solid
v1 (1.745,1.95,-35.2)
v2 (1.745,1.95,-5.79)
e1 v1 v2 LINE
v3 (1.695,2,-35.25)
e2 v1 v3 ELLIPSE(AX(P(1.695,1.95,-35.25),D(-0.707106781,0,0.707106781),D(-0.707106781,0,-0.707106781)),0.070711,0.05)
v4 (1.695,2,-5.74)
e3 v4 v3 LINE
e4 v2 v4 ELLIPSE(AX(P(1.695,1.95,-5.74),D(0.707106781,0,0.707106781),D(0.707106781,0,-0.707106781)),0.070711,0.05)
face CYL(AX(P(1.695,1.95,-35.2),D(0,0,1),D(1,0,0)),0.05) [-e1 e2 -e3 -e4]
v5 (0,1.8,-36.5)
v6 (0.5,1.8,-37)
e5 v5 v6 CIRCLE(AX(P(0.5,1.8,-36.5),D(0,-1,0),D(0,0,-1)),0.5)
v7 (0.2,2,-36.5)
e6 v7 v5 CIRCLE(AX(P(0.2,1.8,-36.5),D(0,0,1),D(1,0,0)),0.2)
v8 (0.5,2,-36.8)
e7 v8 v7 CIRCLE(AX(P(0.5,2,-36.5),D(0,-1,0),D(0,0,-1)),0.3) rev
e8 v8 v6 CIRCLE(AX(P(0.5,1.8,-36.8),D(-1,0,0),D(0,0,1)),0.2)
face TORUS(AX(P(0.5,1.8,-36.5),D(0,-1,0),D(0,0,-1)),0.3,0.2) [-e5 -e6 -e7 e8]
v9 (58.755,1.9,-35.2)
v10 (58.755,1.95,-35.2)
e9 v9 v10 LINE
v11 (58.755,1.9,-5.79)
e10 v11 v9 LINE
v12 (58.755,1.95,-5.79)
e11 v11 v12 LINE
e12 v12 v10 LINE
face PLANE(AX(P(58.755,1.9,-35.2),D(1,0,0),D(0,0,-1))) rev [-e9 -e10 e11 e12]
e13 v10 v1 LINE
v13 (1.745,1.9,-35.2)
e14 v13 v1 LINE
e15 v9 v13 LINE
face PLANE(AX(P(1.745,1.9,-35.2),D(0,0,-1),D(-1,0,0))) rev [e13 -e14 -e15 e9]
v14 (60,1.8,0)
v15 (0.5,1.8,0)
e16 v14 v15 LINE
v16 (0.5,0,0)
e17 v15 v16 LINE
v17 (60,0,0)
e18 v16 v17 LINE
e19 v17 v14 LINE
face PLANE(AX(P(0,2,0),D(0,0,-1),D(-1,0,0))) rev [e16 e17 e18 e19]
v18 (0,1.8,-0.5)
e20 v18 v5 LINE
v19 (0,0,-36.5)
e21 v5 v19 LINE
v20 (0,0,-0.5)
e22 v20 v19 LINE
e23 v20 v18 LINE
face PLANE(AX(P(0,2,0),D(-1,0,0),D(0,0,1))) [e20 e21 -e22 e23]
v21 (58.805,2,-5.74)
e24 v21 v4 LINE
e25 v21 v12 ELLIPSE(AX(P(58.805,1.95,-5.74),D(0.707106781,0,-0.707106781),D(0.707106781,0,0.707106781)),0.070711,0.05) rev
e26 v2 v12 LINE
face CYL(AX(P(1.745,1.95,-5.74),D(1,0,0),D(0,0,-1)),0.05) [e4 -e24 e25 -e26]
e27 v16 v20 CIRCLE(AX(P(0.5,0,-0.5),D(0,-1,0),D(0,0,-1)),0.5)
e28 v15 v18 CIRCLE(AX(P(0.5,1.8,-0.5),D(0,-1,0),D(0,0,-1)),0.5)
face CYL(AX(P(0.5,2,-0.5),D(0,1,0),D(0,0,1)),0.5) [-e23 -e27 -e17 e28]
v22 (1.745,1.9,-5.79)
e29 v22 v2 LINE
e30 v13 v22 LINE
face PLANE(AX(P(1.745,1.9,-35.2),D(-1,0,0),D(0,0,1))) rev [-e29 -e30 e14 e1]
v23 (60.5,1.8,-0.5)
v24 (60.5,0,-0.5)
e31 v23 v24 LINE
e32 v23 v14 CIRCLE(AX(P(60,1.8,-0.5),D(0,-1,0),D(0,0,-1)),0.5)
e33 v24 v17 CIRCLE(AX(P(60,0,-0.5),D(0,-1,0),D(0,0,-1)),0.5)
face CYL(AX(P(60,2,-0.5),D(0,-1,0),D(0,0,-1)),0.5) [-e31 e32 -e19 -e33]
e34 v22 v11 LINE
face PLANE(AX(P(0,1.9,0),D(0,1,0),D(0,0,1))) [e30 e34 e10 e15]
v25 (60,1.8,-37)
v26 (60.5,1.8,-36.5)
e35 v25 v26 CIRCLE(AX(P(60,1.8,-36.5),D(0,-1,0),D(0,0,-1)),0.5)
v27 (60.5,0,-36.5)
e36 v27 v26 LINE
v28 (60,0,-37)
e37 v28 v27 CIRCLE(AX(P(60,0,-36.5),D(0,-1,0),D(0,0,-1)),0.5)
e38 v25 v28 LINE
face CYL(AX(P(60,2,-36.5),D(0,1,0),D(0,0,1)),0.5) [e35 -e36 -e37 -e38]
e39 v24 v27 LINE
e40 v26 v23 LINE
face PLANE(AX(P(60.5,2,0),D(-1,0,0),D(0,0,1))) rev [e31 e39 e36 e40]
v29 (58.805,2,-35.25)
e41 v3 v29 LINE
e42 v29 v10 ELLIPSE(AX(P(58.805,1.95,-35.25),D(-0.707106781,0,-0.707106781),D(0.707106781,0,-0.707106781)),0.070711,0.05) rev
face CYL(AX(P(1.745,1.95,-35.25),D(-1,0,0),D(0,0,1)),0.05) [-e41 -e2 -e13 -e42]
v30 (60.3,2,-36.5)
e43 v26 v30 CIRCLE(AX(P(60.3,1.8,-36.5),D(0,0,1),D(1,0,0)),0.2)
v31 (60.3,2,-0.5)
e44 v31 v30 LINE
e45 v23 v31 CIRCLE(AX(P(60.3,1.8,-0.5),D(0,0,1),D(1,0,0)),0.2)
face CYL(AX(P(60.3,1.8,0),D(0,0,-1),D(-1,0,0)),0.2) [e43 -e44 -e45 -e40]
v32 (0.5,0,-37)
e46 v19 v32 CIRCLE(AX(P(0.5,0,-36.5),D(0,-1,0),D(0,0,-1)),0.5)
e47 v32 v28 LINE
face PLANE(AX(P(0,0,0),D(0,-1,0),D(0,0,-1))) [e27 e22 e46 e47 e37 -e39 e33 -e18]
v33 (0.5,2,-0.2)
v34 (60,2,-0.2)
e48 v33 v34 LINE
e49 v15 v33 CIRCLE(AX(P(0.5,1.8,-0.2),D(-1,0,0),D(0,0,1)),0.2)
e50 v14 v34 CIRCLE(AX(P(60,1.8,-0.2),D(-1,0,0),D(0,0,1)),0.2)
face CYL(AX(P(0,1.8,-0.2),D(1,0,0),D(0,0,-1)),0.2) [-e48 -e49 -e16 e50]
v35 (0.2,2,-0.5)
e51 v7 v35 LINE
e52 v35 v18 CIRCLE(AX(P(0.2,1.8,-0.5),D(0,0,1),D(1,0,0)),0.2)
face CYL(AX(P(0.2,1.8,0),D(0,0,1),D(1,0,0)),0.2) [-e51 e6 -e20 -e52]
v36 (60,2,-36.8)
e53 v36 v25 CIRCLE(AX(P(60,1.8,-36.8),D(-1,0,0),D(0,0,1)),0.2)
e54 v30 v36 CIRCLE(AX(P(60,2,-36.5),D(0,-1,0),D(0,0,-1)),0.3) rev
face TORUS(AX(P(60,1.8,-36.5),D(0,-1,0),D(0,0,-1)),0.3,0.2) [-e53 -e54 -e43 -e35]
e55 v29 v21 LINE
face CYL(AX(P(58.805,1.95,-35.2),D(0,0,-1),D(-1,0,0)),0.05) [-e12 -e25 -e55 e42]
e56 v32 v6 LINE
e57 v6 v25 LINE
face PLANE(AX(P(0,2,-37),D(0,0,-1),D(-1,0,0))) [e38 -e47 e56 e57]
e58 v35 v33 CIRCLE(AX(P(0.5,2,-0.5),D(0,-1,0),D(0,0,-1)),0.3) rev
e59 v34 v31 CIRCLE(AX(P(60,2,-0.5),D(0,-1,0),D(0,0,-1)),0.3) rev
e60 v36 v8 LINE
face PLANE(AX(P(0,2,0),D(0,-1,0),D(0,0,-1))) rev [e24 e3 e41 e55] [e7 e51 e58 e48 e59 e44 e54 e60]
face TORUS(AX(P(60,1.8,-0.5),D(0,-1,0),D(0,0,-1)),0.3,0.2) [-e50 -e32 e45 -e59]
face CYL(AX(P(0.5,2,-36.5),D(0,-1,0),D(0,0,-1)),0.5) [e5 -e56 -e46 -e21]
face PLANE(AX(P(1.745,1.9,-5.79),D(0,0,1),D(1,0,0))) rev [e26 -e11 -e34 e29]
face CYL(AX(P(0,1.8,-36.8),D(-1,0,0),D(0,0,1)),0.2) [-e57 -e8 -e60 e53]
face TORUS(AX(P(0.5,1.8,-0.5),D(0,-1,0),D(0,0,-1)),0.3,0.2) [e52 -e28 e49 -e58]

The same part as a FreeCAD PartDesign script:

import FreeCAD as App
import Part
import Sketcher
Q = App.Units.Quantity


def edges_at(feature, points):
    """Names of the edges that pass closest to the given points."""
    edges = feature.Shape.Edges
    near = lambda p: min(range(len(edges)), key=lambda i: edges[i].distToShape(Part.Vertex(*p))[0])
    return sorted({f"Edge{near(p) + 1}" for p in points})


def add_polygon(sketch, points):
    """Adds a closed chain of lines whose ends are joined by coincident constraints."""
    first, n = sketch.GeometryCount, len(points)
    for a, b in zip(points, points[1:] + points[:1]):
        sketch.addGeometry(Part.LineSegment(App.Vector(*a, 0), App.Vector(*b, 0)), False)
    for i in range(n):
        sketch.addConstraint(Sketcher.Constraint("Coincident", first + i, 2, first + (i + 1) % n, 1))

doc = App.newDocument("Part")
body = doc.addObject("PartDesign::Body", "Body")

sketch1 = body.newObject("Sketcher::SketchObject", "Sketch")
sketch1.AttachmentSupport = (doc.getObject("XZ_Plane"), [""])
sketch1.MapMode = "FlatFace"
add_polygon(sketch1, [(0, -37), (0, 0), (60.5, 0), (60.5, -37)])
sketch1.addConstraint([
    Sketcher.Constraint("Vertical", 0),
    Sketcher.Constraint("Horizontal", 1),
    Sketcher.Constraint("Vertical", 2),
    Sketcher.Constraint("Horizontal", 3),
    Sketcher.Constraint("Coincident", 0, 2, -1, 1),
    Sketcher.Constraint("DistanceY", 0, 1, 0, 2, Q("37 mm")),
    Sketcher.Constraint("DistanceX", 1, 1, 1, 2, Q("60.5 mm")),
])
pad1 = body.newObject("PartDesign::Pad", "Pad")
pad1.Profile = sketch1
pad1.Length = 2
pad1.Reversed = True

sketch2 = body.newObject("Sketcher::SketchObject", "Sketch001")
sketch2.AttachmentSupport = (doc.getObject("XZ_Plane"), [""])
sketch2.MapMode = "FlatFace"
sketch2.AttachmentOffset = App.Placement(App.Vector(0, 0, -2), App.Rotation())
add_polygon(sketch2, [(1.745, -35.2), (1.745, -5.79), (58.755, -5.79), (58.755, -35.2)])
sketch2.addConstraint([
    Sketcher.Constraint("Vertical", 0),
    Sketcher.Constraint("Horizontal", 1),
    Sketcher.Constraint("Vertical", 2),
    Sketcher.Constraint("Horizontal", 3),
    Sketcher.Constraint("DistanceX", 1, 1, 1, 2, Q("57.01 mm")),
    Sketcher.Constraint("DistanceY", 0, 1, 0, 2, Q("29.41 mm")),
    Sketcher.Constraint("DistanceY", 2, 2, -1, 1, Q("35.2 mm")),
    Sketcher.Constraint("DistanceX", -1, 1, 0, 2, Q("1.745 mm")),
])
pocket1 = body.newObject("PartDesign::Pocket", "Pocket")
pocket1.Profile = sketch2
pocket1.Length = 0.1
pocket1.Reversed = True
doc.recompute()

fillet = body.newObject("PartDesign::Fillet", "Fillet")
fillet.Base = (pocket1, edges_at(pocket1, [
    (0, 1, 0),
    (60.5, 1, 0),
    (60.5, 1, -37),
    (0, 1, -37),
]))
fillet.Radius = 0.5
doc.recompute()

fillet2 = body.newObject("PartDesign::Fillet", "Fillet001")
fillet2.Base = (fillet, edges_at(fillet, [
    (30.25, 2, 0),
    (0, 2, -18.5),
    (60.5, 2, -18.5),
    (30.25, 2, -37),
    (0.146, 2, -36.854),
    (60.354, 2, -36.854),
    (60.354, 2, -0.146),
    (0.146, 2, -0.146),
]))
fillet2.Radius = 0.2
doc.recompute()

fillet3 = body.newObject("PartDesign::Fillet", "Fillet002")
fillet3.Base = (fillet2, edges_at(fillet2, [
    (1.745, 2, -20.495),
    (30.25, 2, -5.79),
    (58.755, 2, -20.495),
    (30.25, 2, -35.2),
]))
fillet3.Radius = 0.05

doc.recompute()
